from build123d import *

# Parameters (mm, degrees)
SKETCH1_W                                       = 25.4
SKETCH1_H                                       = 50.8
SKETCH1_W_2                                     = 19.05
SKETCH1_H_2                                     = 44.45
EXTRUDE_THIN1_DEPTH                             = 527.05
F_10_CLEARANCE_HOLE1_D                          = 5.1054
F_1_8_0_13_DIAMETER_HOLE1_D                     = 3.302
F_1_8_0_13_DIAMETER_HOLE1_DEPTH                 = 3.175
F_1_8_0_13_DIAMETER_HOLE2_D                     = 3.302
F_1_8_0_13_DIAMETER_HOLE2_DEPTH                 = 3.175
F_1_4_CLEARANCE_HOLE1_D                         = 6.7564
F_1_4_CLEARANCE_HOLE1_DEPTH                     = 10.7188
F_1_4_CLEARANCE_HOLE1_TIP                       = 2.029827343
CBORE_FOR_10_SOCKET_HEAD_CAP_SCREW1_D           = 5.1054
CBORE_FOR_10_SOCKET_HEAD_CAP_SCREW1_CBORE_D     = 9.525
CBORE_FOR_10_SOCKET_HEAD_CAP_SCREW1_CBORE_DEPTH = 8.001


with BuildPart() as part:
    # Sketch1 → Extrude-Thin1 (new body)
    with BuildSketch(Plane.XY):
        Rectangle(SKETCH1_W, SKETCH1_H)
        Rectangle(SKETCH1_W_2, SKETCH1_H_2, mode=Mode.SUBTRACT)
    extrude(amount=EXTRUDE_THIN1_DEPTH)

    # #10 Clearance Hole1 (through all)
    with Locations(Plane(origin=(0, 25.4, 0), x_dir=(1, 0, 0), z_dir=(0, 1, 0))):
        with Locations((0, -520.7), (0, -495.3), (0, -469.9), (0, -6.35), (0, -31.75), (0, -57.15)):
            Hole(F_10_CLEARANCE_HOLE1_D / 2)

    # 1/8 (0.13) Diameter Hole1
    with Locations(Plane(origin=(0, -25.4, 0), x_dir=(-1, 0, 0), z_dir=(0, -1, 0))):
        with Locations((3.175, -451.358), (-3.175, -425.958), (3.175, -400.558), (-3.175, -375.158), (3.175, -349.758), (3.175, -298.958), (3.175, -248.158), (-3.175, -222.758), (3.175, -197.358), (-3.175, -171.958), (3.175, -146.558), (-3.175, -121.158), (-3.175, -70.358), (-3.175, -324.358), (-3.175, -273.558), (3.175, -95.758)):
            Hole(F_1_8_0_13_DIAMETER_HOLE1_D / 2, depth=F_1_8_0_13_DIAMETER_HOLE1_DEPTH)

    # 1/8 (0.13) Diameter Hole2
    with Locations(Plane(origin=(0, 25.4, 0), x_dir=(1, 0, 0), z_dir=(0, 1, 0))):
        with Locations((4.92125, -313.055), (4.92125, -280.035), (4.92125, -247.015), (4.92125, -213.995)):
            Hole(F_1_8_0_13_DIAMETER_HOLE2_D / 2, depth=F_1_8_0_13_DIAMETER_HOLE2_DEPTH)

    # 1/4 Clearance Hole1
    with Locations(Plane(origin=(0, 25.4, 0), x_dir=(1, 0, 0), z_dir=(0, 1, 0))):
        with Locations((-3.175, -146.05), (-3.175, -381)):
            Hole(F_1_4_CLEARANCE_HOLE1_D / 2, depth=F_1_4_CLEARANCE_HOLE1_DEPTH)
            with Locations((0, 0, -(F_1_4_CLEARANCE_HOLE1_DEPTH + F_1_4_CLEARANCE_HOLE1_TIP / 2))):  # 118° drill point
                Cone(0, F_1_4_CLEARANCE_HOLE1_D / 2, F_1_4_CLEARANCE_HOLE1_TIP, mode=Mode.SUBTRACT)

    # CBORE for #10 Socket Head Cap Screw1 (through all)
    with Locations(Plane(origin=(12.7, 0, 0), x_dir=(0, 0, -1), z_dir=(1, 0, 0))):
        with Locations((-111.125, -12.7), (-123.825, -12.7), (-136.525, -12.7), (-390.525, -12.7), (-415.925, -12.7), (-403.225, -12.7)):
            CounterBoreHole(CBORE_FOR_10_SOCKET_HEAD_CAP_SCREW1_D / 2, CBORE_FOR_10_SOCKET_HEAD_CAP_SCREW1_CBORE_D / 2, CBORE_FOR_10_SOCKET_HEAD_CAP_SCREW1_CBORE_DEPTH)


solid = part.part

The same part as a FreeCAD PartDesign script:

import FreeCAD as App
import Part
import Sketcher

V = App.Vector
Q = App.Units.Quantity


def add_polygon(sketch, points):
    """Adds a closed chain of lines whose ends are joined by coincident constraints."""
    first, n = sketch.GeometryCount, len(points)
    for a, b in zip(points, points[1:] + points[:1]):
        sketch.addGeometry(Part.LineSegment(App.Vector(*a, 0), App.Vector(*b, 0)), False)
    for i in range(n):
        sketch.addConstraint(Sketcher.Constraint("Coincident", first + i, 2, first + (i + 1) % n, 1))

doc = App.newDocument("Part")
params = doc.addObject("Spreadsheet::Sheet", "Params")
for row, (alias, value) in enumerate([
    ("sketch1_width", "1 in"),
    ("sketch1_height", "2 in"),
    ("sketch1_width2", "0.75 in"),
    ("sketch1_height2", "1.75 in"),
    ("pad1_length", "20.75 in"),
    ("sketch2_diameter", "0.201 in"),
    ("hole_diameter", "0.201 in"),
    ("sketch3_diameter", "0.13 in"),
    ("hole2_diameter", "0.13 in"),
    ("hole2_depth", "0.125 in"),
    ("sketch4_diameter", "0.13 in"),
    ("hole3_diameter", "0.13 in"),
    ("hole3_depth", "0.125 in"),
    ("sketch5_diameter", "0.266 in"),
    ("hole4_diameter", "0.266 in"),
    ("hole4_depth", "0.422 in"),
    ("sketch6_diameter", "0.201 in"),
    ("hole5_diameter", "0.201 in"),
    ("hole5_cbore_diameter", "0.375 in"),
    ("hole5_cbore_depth", "0.315 in"),
], start=1):
    params.set(f"A{row}", alias)
    params.set(f"B{row}", "=" + value)
    params.setAlias(f"B{row}", alias)

body = doc.addObject("PartDesign::Body", "Body")

# Sketch on XY plane
sketch1 = body.newObject("Sketcher::SketchObject", "Sketch")
sketch1.AttachmentSupport = (doc.getObject("XY_Plane"), [""])
sketch1.MapMode = "FlatFace"
add_polygon(sketch1, [(-13, 25), (-13, -25), (13, -25), (13, 25)])  # lines 0-3
add_polygon(sketch1, [(10, -22), (-10, -22), (-10, 22), (10, 22)])  # lines 4-7
sketch1.addConstraint([
    Sketcher.Constraint("Vertical", 0),
    Sketcher.Constraint("Horizontal", 1),
    Sketcher.Constraint("Vertical", 2),
    Sketcher.Constraint("Horizontal", 3),
    Sketcher.Constraint("Horizontal", 4),
    Sketcher.Constraint("Vertical", 5),
    Sketcher.Constraint("Horizontal", 6),
    Sketcher.Constraint("Vertical", 7),
    Sketcher.Constraint("Symmetric", 0, 2, 2, 2, -1, 1),
    Sketcher.Constraint("Symmetric", 4, 2, 6, 2, -1, 1),
    Sketcher.Constraint("DistanceX", 1, 1, 1, 2, Q("1 in")),
    Sketcher.Constraint("DistanceY", 0, 2, 0, 1, Q("2 in")),
    Sketcher.Constraint("DistanceX", 4, 2, 4, 1, Q("0.75 in")),
    Sketcher.Constraint("DistanceY", 5, 1, 5, 2, Q("1.75 in")),
])
sketch1.setExpression("Constraints[18]", "Params.sketch1_width")
sketch1.setExpression("Constraints[19]", "Params.sketch1_height")
sketch1.setExpression("Constraints[20]", "Params.sketch1_width2")
sketch1.setExpression("Constraints[21]", "Params.sketch1_height2")
pad1 = body.newObject("PartDesign::Pad", "Pad")
pad1.Profile = sketch1
pad1.setExpression("Length", "Params.pad1_length")

# Sketch on XZ plane
sketch2 = body.newObject("Sketcher::SketchObject", "Sketch001")
sketch2.AttachmentSupport = (doc.getObject("XZ_Plane"), [""])
sketch2.MapMode = "FlatFace"
sketch2.AttachmentOffset = App.Placement(V(0, 0, -1 * 25.4), App.Rotation())
sketch2.addGeometry([
    Part.Circle(V(0, 520.7, 0), V(0, 0, 1), 2.6),  # 0
    Part.Circle(V(0, 495.3, 0), V(0, 0, 1), 2.6),  # 1
    Part.Circle(V(0, 469.9, 0), V(0, 0, 1), 2.6),  # 2
    Part.Circle(V(0, 6.3, 0), V(0, 0, 1), 2.6),  # 3
    Part.Circle(V(0, 31.8, 0), V(0, 0, 1), 2.6),  # 4
    Part.Circle(V(0, 57.1, 0), V(0, 0, 1), 2.6),  # 5
], False)
sketch2.addConstraint([
    Sketcher.Constraint("Equal", 0, 1),
    Sketcher.Constraint("Equal", 1, 2),
    Sketcher.Constraint("Equal", 2, 3),
    Sketcher.Constraint("Equal", 3, 4),
    Sketcher.Constraint("Equal", 4, 5),
    Sketcher.Constraint("PointOnObject", 0, 3, -2),
    Sketcher.Constraint("PointOnObject", 1, 3, -2),
    Sketcher.Constraint("PointOnObject", 2, 3, -2),
    Sketcher.Constraint("PointOnObject", 3, 3, -2),
    Sketcher.Constraint("PointOnObject", 4, 3, -2),
    Sketcher.Constraint("PointOnObject", 5, 3, -2),
    Sketcher.Constraint("Diameter", 0, Q("0.201 in")),
    Sketcher.Constraint("DistanceY", 1, 3, 0, 3, Q("1 in")),
    Sketcher.Constraint("DistanceY", 2, 3, 1, 3, Q("1 in")),
    Sketcher.Constraint("DistanceY", 3, 3, 4, 3, Q("1 in")),
    Sketcher.Constraint("DistanceY", 4, 3, 5, 3, Q("1 in")),
    Sketcher.Constraint("DistanceY", -1, 1, 0, 3, Q("20.5 in")),
    Sketcher.Constraint("DistanceY", -1, 1, 3, 3, Q("0.25 in")),
])
sketch2.setExpression("Constraints[11]", "Params.sketch2_diameter")
doc.recompute()
hole = body.newObject("PartDesign::Hole", "Hole")
hole.Profile = sketch2
hole.ThreadType = "None"
hole.setExpression("Diameter", "Params.hole_diameter")
hole.DepthType = "ThroughAll"
hole.Reversed = True

# Sketch on XZ plane
sketch3 = body.newObject("Sketcher::SketchObject", "Sketch002")
sketch3.AttachmentSupport = (doc.getObject("XZ_Plane"), [""])
sketch3.MapMode = "FlatFace"
sketch3.AttachmentOffset = App.Placement(V(0, 0, 1 * 25.4), App.Rotation())
sketch3.addGeometry([
    Part.Circle(V(-3.2, 451.4, 0), V(0, 0, 1), 1.7),  # 0
    Part.Circle(V(3.2, 426, 0), V(0, 0, 1), 1.7),  # 1
    Part.Circle(V(-3.2, 400.6, 0), V(0, 0, 1), 1.7),  # 2
    Part.Circle(V(3.2, 375.2, 0), V(0, 0, 1), 1.7),  # 3
    Part.Circle(V(-3.2, 349.8, 0), V(0, 0, 1), 1.7),  # 4
    Part.Circle(V(-3.2, 299, 0), V(0, 0, 1), 1.7),  # 5
    Part.Circle(V(-3.2, 248.2, 0), V(0, 0, 1), 1.7),  # 6
    Part.Circle(V(3.2, 222.8, 0), V(0, 0, 1), 1.7),  # 7
    Part.Circle(V(-3.2, 197.4, 0), V(0, 0, 1), 1.7),  # 8
    Part.Circle(V(3.2, 172, 0), V(0, 0, 1), 1.7),  # 9
    Part.Circle(V(-3.2, 146.6, 0), V(0, 0, 1), 1.7),  # 10
    Part.Circle(V(3.2, 121.2, 0), V(0, 0, 1), 1.7),  # 11
    Part.Circle(V(3.2, 70.4, 0), V(0, 0, 1), 1.7),  # 12
    Part.Circle(V(3.2, 324.4, 0), V(0, 0, 1), 1.7),  # 13
    Part.Circle(V(3.2, 273.6, 0), V(0, 0, 1), 1.7),  # 14
    Part.Circle(V(-3.2, 95.8, 0), V(0, 0, 1), 1.7),  # 15
], False)
sketch3.addConstraint([
    Sketcher.Constraint("Equal", 0, 1),
    Sketcher.Constraint("Equal", 1, 2),
    Sketcher.Constraint("Equal", 2, 3),
    Sketcher.Constraint("Equal", 3, 4),
    Sketcher.Constraint("Equal", 4, 5),
    Sketcher.Constraint("Equal", 5, 6),
    Sketcher.Constraint("Equal", 6, 7),
    Sketcher.Constraint("Equal", 7, 8),
    Sketcher.Constraint("Equal", 8, 9),
    Sketcher.Constraint("Equal", 9, 10),
    Sketcher.Constraint("Equal", 10, 11),
    Sketcher.Constraint("Equal", 11, 12),
    Sketcher.Constraint("Equal", 12, 13),
    Sketcher.Constraint("Equal", 13, 14),
    Sketcher.Constraint("Equal", 14, 15),
    Sketcher.Constraint("Vertical", 0, 3, 2, 3),
    Sketcher.Constraint("Vertical", 1, 3, 3, 3),
    Sketcher.Constraint("Vertical", 2, 3, 4, 3),
    Sketcher.Constraint("Vertical", 4, 3, 5, 3),
    Sketcher.Constraint("Vertical", 5, 3, 6, 3),
    Sketcher.Constraint("Vertical", 3, 3, 7, 3),
    Sketcher.Constraint("Vertical", 6, 3, 8, 3),
    Sketcher.Constraint("Vertical", 7, 3, 9, 3),
    Sketcher.Constraint("Vertical", 8, 3, 10, 3),
    Sketcher.Constraint("Vertical", 9, 3, 11, 3),
    Sketcher.Constraint("Vertical", 11, 3, 12, 3),
    Sketcher.Constraint("Vertical", 12, 3, 13, 3),
    Sketcher.Constraint("Vertical", 13, 3, 14, 3),
    Sketcher.Constraint("Vertical", 10, 3, 15, 3),
    Sketcher.Constraint("Diameter", 0, Q("0.13 in")),
    Sketcher.Constraint("DistanceY", 1, 3, 0, 3, Q("1 in")),
    Sketcher.Constraint("DistanceY", 2, 3, 1, 3, Q("1 in")),
    Sketcher.Constraint("DistanceY", 3, 3, 2, 3, Q("1 in")),
    Sketcher.Constraint("DistanceY", 4, 3, 3, 3, Q("1 in")),
    Sketcher.Constraint("DistanceY", 5, 3, 4, 3, Q("2 in")),
    Sketcher.Constraint("DistanceY", 6, 3, 5, 3, Q("2 in")),
    Sketcher.Constraint("DistanceY", 7, 3, 6, 3, Q("1 in")),
    Sketcher.Constraint("DistanceY", 8, 3, 7, 3, Q("1 in")),
    Sketcher.Constraint("DistanceY", 9, 3, 8, 3, Q("1 in")),
    Sketcher.Constraint("DistanceY", 10, 3, 9, 3, Q("1 in")),
    Sketcher.Constraint("DistanceY", 11, 3, 10, 3, Q("1 in")),
    Sketcher.Constraint("DistanceY", 12, 3, 11, 3, Q("2 in")),
    Sketcher.Constraint("DistanceY", 13, 3, 4, 3, Q("1 in")),
    Sketcher.Constraint("DistanceY", 6, 3, 14, 3, Q("1 in")),
    Sketcher.Constraint("DistanceY", 12, 3, 15, 3, Q("1 in")),
    Sketcher.Constraint("DistanceY", -1, 1, 0, 3, Q("17.77 in")),
    Sketcher.Constraint("DistanceX", 0, 3, 1, 3, Q("0.25 in")),
    Sketcher.Constraint("DistanceX", 0, 3, -1, 1, Q("0.125 in")),
])
sketch3.setExpression("Constraints[29]", "Params.sketch3_diameter")
doc.recompute()
hole2 = body.newObject("PartDesign::Hole", "Hole001")
hole2.Profile = sketch3
hole2.ThreadType = "None"
hole2.setExpression("Diameter", "Params.hole2_diameter")
hole2.DepthType = "Dimension"
hole2.setExpression("Depth", "Params.hole2_depth")
hole2.DrillPoint = "Flat"

# Sketch on XZ plane
sketch4 = body.newObject("Sketcher::SketchObject", "Sketch003")
sketch4.AttachmentSupport = (doc.getObject("XZ_Plane"), [""])
sketch4.MapMode = "FlatFace"
sketch4.AttachmentOffset = App.Placement(V(0, 0, -1 * 25.4), App.Rotation())
sketch4.addGeometry([
    Part.Circle(V(4.9, 313.1, 0), V(0, 0, 1), 1.7),
    Part.Circle(V(4.9, 280, 0), V(0, 0, 1), 1.7),
    Part.Circle(V(4.9, 247, 0), V(0, 0, 1), 1.7),
    Part.Circle(V(4.9, 214, 0), V(0, 0, 1), 1.7),
], False)
sketch4.addConstraint([
    Sketcher.Constraint("Equal", 0, 1),
    Sketcher.Constraint("Equal", 1, 2),
    Sketcher.Constraint("Equal", 2, 3),
    Sketcher.Constraint("Vertical", 0, 3, 1, 3),
    Sketcher.Constraint("Vertical", 1, 3, 2, 3),
    Sketcher.Constraint("Vertical", 2, 3, 3, 3),
    Sketcher.Constraint("Diameter", 0, Q("0.13 in")),
    Sketcher.Constraint("DistanceY", 1, 3, 0, 3, Q("1.3 in")),
    Sketcher.Constraint("DistanceY", 2, 3, 1, 3, Q("1.3 in")),
    Sketcher.Constraint("DistanceY", 3, 3, 2, 3, Q("1.3 in")),
    Sketcher.Constraint("DistanceY", -1, 1, 0, 3, Q("12.325 in")),
    Sketcher.Constraint("DistanceX", -1, 1, 0, 3, Q("4.92125 mm")),
])
sketch4.setExpression("Constraints[6]", "Params.sketch4_diameter")
doc.recompute()
hole3 = body.newObject("PartDesign::Hole", "Hole002")
hole3.Profile = sketch4
hole3.ThreadType = "None"
hole3.setExpression("Diameter", "Params.hole3_diameter")
hole3.DepthType = "Dimension"
hole3.setExpression("Depth", "Params.hole3_depth")
hole3.DrillPoint = "Flat"
hole3.Reversed = True

# Sketch on XZ plane
sketch5 = body.newObject("Sketcher::SketchObject", "Sketch004")
sketch5.AttachmentSupport = (doc.getObject("XZ_Plane"), [""])
sketch5.MapMode = "FlatFace"
sketch5.AttachmentOffset = App.Placement(V(0, 0, -1 * 25.4), App.Rotation())
sketch5.addGeometry([
    Part.Circle(V(-3.2, 146.1, 0), V(0, 0, 1), 3.4),
    Part.Circle(V(-3.2, 381, 0), V(0, 0, 1), 3.4),
], False)
sketch5.addConstraint([
    Sketcher.Constraint("Equal", 0, 1),
    Sketcher.Constraint("Vertical", 0, 3, 1, 3),
    Sketcher.Constraint("Diameter", 0, Q("0.266 in")),
    Sketcher.Constraint("DistanceY", -1, 1, 1, 3, Q("15 in")),
    Sketcher.Constraint("DistanceY", -1, 1, 0, 3, Q("5.75 in")),
    Sketcher.Constraint("DistanceX", 0, 3, -1, 1, Q("0.125 in")),
])
sketch5.setExpression("Constraints[2]", "Params.sketch5_diameter")
doc.recompute()
hole4 = body.newObject("PartDesign::Hole", "Hole003")
hole4.Profile = sketch5
hole4.ThreadType = "None"
hole4.setExpression("Diameter", "Params.hole4_diameter")
hole4.DepthType = "Dimension"
hole4.setExpression("Depth", "Params.hole4_depth")
hole4.DrillPoint = "Angled"
hole4.DrillPointAngle = 118
hole4.Reversed = True

# Sketch on YZ plane
sketch6 = body.newObject("Sketcher::SketchObject", "Sketch005")
sketch6.AttachmentSupport = (doc.getObject("YZ_Plane"), [""])
sketch6.MapMode = "FlatFace"
sketch6.AttachmentOffset = App.Placement(V(0, 0, 0.5 * 25.4), App.Rotation())
sketch6.addGeometry([
    Part.Circle(V(-12.7, 111.1, 0), V(0, 0, 1), 2.6),  # 0
    Part.Circle(V(-12.7, 123.8, 0), V(0, 0, 1), 2.6),  # 1
    Part.Circle(V(-12.7, 136.5, 0), V(0, 0, 1), 2.6),  # 2
    Part.Circle(V(-12.7, 390.5, 0), V(0, 0, 1), 2.6),  # 3
    Part.Circle(V(-12.7, 415.9, 0), V(0, 0, 1), 2.6),  # 4
    Part.Circle(V(-12.7, 403.2, 0), V(0, 0, 1), 2.6),  # 5
], False)
sketch6.addConstraint([
    Sketcher.Constraint("Equal", 0, 1),
    Sketcher.Constraint("Equal", 1, 2),
    Sketcher.Constraint("Equal", 2, 3),
    Sketcher.Constraint("Equal", 3, 4),
    Sketcher.Constraint("Equal", 4, 5),
    Sketcher.Constraint("Vertical", 0, 3, 1, 3),
    Sketcher.Constraint("Vertical", 1, 3, 2, 3),
    Sketcher.Constraint("Vertical", 2, 3, 3, 3),
    Sketcher.Constraint("Vertical", 3, 3, 4, 3),
    Sketcher.Constraint("Vertical", 4, 3, 5, 3),
    Sketcher.Constraint("Diameter", 0, Q("0.201 in")),
    Sketcher.Constraint("DistanceY", 0, 3, 2, 3, Q("1 in")),
    Sketcher.Constraint("DistanceY", 2, 3, 3, 3, Q("10 in")),
    Sketcher.Constraint("DistanceY", 3, 3, 4, 3, Q("1 in")),
    Sketcher.Constraint("DistanceY", 1, 3, 5, 3, Q("11 in")),
    Sketcher.Constraint("DistanceX", 0, 3, -1, 1, Q("0.5 in")),
    Sketcher.Constraint("DistanceY", 0, 3, 1, 3, Q("0.5 in")),
    Sketcher.Constraint("DistanceY", -1, 1, 0, 3, Q("4.375 in")),
])
sketch6.setExpression("Constraints[10]", "Params.sketch6_diameter")
doc.recompute()
hole5 = body.newObject("PartDesign::Hole", "Hole004")
hole5.Profile = sketch6
hole5.ThreadType = "None"
hole5.setExpression("Diameter", "Params.hole5_diameter")
hole5.DepthType = "ThroughAll"
hole5.HoleCutType = "Counterbore"
hole5.setExpression("HoleCutDiameter", "Params.hole5_cbore_diameter")
hole5.setExpression("HoleCutDepth", "Params.hole5_cbore_depth")

doc.recompute()
